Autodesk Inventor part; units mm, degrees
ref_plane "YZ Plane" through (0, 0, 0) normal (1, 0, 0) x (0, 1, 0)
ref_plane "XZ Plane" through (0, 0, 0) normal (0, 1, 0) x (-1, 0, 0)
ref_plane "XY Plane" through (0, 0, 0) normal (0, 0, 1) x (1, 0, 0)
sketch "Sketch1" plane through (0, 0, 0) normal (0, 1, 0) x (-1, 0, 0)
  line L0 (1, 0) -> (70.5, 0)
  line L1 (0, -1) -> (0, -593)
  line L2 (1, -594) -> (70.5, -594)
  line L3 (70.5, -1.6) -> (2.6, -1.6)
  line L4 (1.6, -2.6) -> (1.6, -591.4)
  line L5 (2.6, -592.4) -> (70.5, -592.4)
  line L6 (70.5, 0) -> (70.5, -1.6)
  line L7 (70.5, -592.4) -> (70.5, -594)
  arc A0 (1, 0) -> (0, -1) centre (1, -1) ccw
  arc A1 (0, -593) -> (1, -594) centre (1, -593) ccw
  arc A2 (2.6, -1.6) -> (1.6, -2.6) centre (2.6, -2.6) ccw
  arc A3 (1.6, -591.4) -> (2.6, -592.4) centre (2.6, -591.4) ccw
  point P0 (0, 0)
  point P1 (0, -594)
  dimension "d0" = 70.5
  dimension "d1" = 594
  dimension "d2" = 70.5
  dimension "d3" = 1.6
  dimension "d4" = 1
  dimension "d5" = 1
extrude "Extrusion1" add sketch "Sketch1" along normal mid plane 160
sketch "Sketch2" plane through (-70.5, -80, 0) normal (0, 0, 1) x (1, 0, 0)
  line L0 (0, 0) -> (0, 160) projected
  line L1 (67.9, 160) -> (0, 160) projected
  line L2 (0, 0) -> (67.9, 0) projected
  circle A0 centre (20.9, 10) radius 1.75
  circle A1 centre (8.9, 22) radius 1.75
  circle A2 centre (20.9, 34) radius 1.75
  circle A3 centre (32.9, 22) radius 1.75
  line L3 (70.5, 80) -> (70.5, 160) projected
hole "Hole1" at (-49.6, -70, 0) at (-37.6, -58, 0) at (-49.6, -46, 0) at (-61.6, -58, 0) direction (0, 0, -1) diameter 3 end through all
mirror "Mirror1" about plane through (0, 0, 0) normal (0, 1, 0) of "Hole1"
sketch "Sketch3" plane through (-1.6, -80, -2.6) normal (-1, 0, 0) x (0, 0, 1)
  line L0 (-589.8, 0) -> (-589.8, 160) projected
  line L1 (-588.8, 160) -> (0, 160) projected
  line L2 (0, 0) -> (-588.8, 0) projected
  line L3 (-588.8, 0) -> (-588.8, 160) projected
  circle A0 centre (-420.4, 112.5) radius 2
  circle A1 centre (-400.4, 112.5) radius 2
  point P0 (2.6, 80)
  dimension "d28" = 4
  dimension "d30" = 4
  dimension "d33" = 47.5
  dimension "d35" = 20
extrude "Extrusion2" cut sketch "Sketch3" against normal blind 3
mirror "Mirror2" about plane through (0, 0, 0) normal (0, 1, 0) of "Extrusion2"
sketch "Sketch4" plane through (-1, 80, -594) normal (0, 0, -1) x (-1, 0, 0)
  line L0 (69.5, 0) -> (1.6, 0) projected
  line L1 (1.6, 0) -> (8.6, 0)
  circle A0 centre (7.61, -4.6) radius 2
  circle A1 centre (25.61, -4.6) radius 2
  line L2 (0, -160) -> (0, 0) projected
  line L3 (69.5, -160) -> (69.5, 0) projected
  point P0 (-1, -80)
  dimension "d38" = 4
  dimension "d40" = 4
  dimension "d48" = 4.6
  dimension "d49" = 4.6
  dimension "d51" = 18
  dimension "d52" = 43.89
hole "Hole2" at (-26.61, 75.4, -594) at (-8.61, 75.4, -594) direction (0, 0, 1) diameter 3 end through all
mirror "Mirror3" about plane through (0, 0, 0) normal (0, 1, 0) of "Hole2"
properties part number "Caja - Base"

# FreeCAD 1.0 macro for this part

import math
import FreeCAD as App
import Part
import Sketcher
Q = App.Units.Quantity

doc = App.newDocument("Part")
body = doc.addObject("PartDesign::Body", "Body")

sketch1 = body.newObject("Sketcher::SketchObject", "Sketch")
sketch1.AttachmentSupport = (doc.getObject("XZ_Plane"), [""])
sketch1.MapMode = "FlatFace"
sketch1.addGeometry(Part.LineSegment(App.Vector(-70.5, 0, 0), App.Vector(-1, 0, 0)), False)
sketch1.addGeometry(Part.ArcOfCircle(Part.Circle(App.Vector(-1, -1, 0), App.Vector(0, 0, 1), 1), math.radians(0), math.radians(90)), False)
sketch1.addGeometry(Part.LineSegment(App.Vector(0, -1, 0), App.Vector(0, -593, 0)), False)
sketch1.addGeometry(Part.ArcOfCircle(Part.Circle(App.Vector(-1, -593, 0), App.Vector(0, 0, 1), 1), math.radians(-90), math.radians(0)), False)
sketch1.addGeometry(Part.LineSegment(App.Vector(-1, -594, 0), App.Vector(-70.5, -594, 0)), False)
sketch1.addGeometry(Part.LineSegment(App.Vector(-70.5, -594, 0), App.Vector(-70.5, -592.4, 0)), False)
sketch1.addGeometry(Part.LineSegment(App.Vector(-70.5, -592.4, 0), App.Vector(-2.6, -592.4, 0)), False)
sketch1.addGeometry(Part.ArcOfCircle(Part.Circle(App.Vector(-2.6, -591.4, 0), App.Vector(0, 0, 1), 1), math.radians(-90), math.radians(0)), False)
sketch1.addGeometry(Part.LineSegment(App.Vector(-1.6, -591.4, 0), App.Vector(-1.6, -2.6, 0)), False)
sketch1.addGeometry(Part.ArcOfCircle(Part.Circle(App.Vector(-2.6, -2.6, 0), App.Vector(0, 0, 1), 1), math.radians(0), math.radians(90)), False)
sketch1.addGeometry(Part.LineSegment(App.Vector(-2.6, -1.6, 0), App.Vector(-70.5, -1.6, 0)), False)
sketch1.addGeometry(Part.LineSegment(App.Vector(-70.5, -1.6, 0), App.Vector(-70.5, 0, 0)), False)
sketch1.addConstraint(Sketcher.Constraint("Tangent", 0, 2, 1, 2))
sketch1.addConstraint(Sketcher.Constraint("Tangent", 1, 1, 2, 1))
sketch1.addConstraint(Sketcher.Constraint("Tangent", 2, 2, 3, 2))
sketch1.addConstraint(Sketcher.Constraint("Tangent", 3, 1, 4, 1))
sketch1.addConstraint(Sketcher.Constraint("Coincident", 4, 2, 5, 1))
sketch1.addConstraint(Sketcher.Constraint("Coincident", 5, 2, 6, 1))
sketch1.addConstraint(Sketcher.Constraint("Tangent", 6, 2, 7, 1))
sketch1.addConstraint(Sketcher.Constraint("Tangent", 7, 2, 8, 1))
sketch1.addConstraint(Sketcher.Constraint("Tangent", 8, 2, 9, 1))
sketch1.addConstraint(Sketcher.Constraint("Tangent", 9, 2, 10, 1))
sketch1.addConstraint(Sketcher.Constraint("Coincident", 10, 2, 11, 1))
sketch1.addConstraint(Sketcher.Constraint("Coincident", 11, 2, 0, 1))
sketch1.addConstraint(Sketcher.Constraint("Horizontal", 0))
sketch1.addConstraint(Sketcher.Constraint("Vertical", 2))
sketch1.addConstraint(Sketcher.Constraint("Horizontal", 4))
sketch1.addConstraint(Sketcher.Constraint("Vertical", 5))
sketch1.addConstraint(Sketcher.Constraint("Horizontal", 6))
sketch1.addConstraint(Sketcher.Constraint("Vertical", 8))
sketch1.addConstraint(Sketcher.Constraint("Horizontal", 10))
sketch1.addConstraint(Sketcher.Constraint("Vertical", 11))
sketch1.addConstraint(Sketcher.Constraint("Equal", 1, 3))
sketch1.addConstraint(Sketcher.Constraint("Equal", 3, 7))
sketch1.addConstraint(Sketcher.Constraint("Equal", 7, 9))
sketch1.addConstraint(Sketcher.Constraint("PointOnObject", 0, 2, -1))
sketch1.addConstraint(Sketcher.Constraint("PointOnObject", 1, 1, -2))
sketch1.addConstraint(Sketcher.Constraint("Vertical", 5, 2, 10, 2))
sketch1.addConstraint(Sketcher.Constraint("Equal", 5, 11))
sketch1.addConstraint(Sketcher.Constraint("Radius", 1, Q("1 mm")))
sketch1.addConstraint(Sketcher.Constraint("DistanceY", 5, 1, 5, 2, Q("1.6 mm")))
sketch1.addConstraint(Sketcher.Constraint("DistanceY", 3, 1, -1, 1, Q("594 mm")))
sketch1.addConstraint(Sketcher.Constraint("DistanceX", 4, 2, -1, 1, Q("70.5 mm")))
sketch1.addConstraint(Sketcher.Constraint("DistanceX", 7, 2, -1, 1, Q("1.6 mm")))
pad1 = body.newObject("PartDesign::Pad", "Pad")
pad1.Profile = sketch1
pad1.Length = 160
pad1.Midplane = True

sketch2 = body.newObject("Sketcher::SketchObject", "Sketch001")
sketch2.AttachmentSupport = (doc.getObject("XY_Plane"), [""])
sketch2.MapMode = "FlatFace"
sketch2.addGeometry(Part.Circle(App.Vector(-49.6, -70, 0), App.Vector(0, 0, 1), 1.5), False)
sketch2.addGeometry(Part.Circle(App.Vector(-37.6, -58, 0), App.Vector(0, 0, 1), 1.5), False)
sketch2.addGeometry(Part.Circle(App.Vector(-49.6, -46, 0), App.Vector(0, 0, 1), 1.5), False)
sketch2.addGeometry(Part.Circle(App.Vector(-61.6, -58, 0), App.Vector(0, 0, 1), 1.5), False)
sketch2.addConstraint(Sketcher.Constraint("Equal", 0, 1))
sketch2.addConstraint(Sketcher.Constraint("Equal", 1, 2))
sketch2.addConstraint(Sketcher.Constraint("Equal", 2, 3))
sketch2.addConstraint(Sketcher.Constraint("Horizontal", 1, 3, 3, 3))
sketch2.addConstraint(Sketcher.Constraint("Vertical", 0, 3, 2, 3))
sketch2.addConstraint(Sketcher.Constraint("Diameter", 0, Q("3 mm")))
sketch2.addConstraint(Sketcher.Constraint("DistanceY", 0, 3, -1, 1, Q("70 mm")))
sketch2.addConstraint(Sketcher.Constraint("DistanceY", 1, 3, -1, 1, Q("58 mm")))
sketch2.addConstraint(Sketcher.Constraint("DistanceY", 2, 3, -1, 1, Q("46 mm")))
sketch2.addConstraint(Sketcher.Constraint("DistanceX", 0, 3, 1, 3, Q("12 mm")))
sketch2.addConstraint(Sketcher.Constraint("DistanceX", 3, 3, 0, 3, Q("12 mm")))
sketch2.addConstraint(Sketcher.Constraint("DistanceX", 0, 3, -1, 1, Q("49.6 mm")))
doc.recompute()
hole = body.newObject("PartDesign::Hole", "Hole")
hole.Profile = sketch2
hole.ThreadType = "None"
hole.Diameter = 3
hole.DepthType = "ThroughAll"
doc.recompute()

mirrored = body.newObject("PartDesign::Mirrored", "Mirrored")
mirrored.Originals = [hole]
mirrored.MirrorPlane = (doc.getObject("XZ_Plane"), [""])
body.Tip = mirrored

sketch3 = body.newObject("Sketcher::SketchObject", "Sketch002")
sketch3.AttachmentSupport = (doc.getObject("YZ_Plane"), [""])
sketch3.MapMode = "FlatFace"
sketch3.AttachmentOffset = App.Placement(App.Vector(0, 0, -1.6), App.Rotation())
sketch3.addGeometry(Part.Circle(App.Vector(32.5, -423, 0), App.Vector(0, 0, 1), 2), False)
sketch3.addGeometry(Part.Circle(App.Vector(32.5, -403, 0), App.Vector(0, 0, 1), 2), False)
sketch3.addConstraint(Sketcher.Constraint("Equal", 0, 1))
sketch3.addConstraint(Sketcher.Constraint("Vertical", 0, 3, 1, 3))
sketch3.addConstraint(Sketcher.Constraint("Diameter", 0, Q("4 mm")))
sketch3.addConstraint(Sketcher.Constraint("DistanceY", 0, 3, 1, 3, Q("20 mm")))
sketch3.addConstraint(Sketcher.Constraint("DistanceY", 0, 3, -1, 1, Q("423 mm")))
sketch3.addConstraint(Sketcher.Constraint("DistanceX", -1, 1, 0, 3, Q("32.5 mm")))
pocket1 = body.newObject("PartDesign::Pocket", "Pocket")
pocket1.Profile = sketch3
pocket1.Length = 3
pocket1.Reversed = True
doc.recompute()

mirrored2 = body.newObject("PartDesign::Mirrored", "Mirrored001")
mirrored2.Originals = [pocket1]
mirrored2.MirrorPlane = (doc.getObject("XZ_Plane"), [""])
body.Tip = mirrored2

sketch4 = body.newObject("Sketcher::SketchObject", "Sketch003")
sketch4.AttachmentSupport = (doc.getObject("XY_Plane"), [""])
sketch4.MapMode = "FlatFace"
sketch4.AttachmentOffset = App.Placement(App.Vector(0, 0, -594), App.Rotation())
sketch4.addGeometry(Part.Circle(App.Vector(-26.6, 75.4, 0), App.Vector(0, 0, 1), 1.5), False)
sketch4.addGeometry(Part.Circle(App.Vector(-8.6, 75.4, 0), App.Vector(0, 0, 1), 1.5), False)
sketch4.addConstraint(Sketcher.Constraint("Equal", 0, 1))
sketch4.addConstraint(Sketcher.Constraint("Horizontal", 0, 3, 1, 3))
sketch4.addConstraint(Sketcher.Constraint("Diameter", 0, Q("3 mm")))
sketch4.addConstraint(Sketcher.Constraint("DistanceX", 0, 3, 1, 3, Q("18 mm")))
sketch4.addConstraint(Sketcher.Constraint("DistanceY", -1, 1, 0, 3, Q("75.4 mm")))
sketch4.addConstraint(Sketcher.Constraint("DistanceX", 0, 3, -1, 1, Q("26.61 mm")))
doc.recompute()
hole2 = body.newObject("PartDesign::Hole", "Hole001")
hole2.Profile = sketch4
hole2.ThreadType = "None"
hole2.Diameter = 3
hole2.DepthType = "ThroughAll"
hole2.Reversed = True
doc.recompute()

mirrored3 = body.newObject("PartDesign::Mirrored", "Mirrored002")
mirrored3.Originals = [hole2]
mirrored3.MirrorPlane = (doc.getObject("XZ_Plane"), [""])
body.Tip = mirrored3

doc.recompute()
